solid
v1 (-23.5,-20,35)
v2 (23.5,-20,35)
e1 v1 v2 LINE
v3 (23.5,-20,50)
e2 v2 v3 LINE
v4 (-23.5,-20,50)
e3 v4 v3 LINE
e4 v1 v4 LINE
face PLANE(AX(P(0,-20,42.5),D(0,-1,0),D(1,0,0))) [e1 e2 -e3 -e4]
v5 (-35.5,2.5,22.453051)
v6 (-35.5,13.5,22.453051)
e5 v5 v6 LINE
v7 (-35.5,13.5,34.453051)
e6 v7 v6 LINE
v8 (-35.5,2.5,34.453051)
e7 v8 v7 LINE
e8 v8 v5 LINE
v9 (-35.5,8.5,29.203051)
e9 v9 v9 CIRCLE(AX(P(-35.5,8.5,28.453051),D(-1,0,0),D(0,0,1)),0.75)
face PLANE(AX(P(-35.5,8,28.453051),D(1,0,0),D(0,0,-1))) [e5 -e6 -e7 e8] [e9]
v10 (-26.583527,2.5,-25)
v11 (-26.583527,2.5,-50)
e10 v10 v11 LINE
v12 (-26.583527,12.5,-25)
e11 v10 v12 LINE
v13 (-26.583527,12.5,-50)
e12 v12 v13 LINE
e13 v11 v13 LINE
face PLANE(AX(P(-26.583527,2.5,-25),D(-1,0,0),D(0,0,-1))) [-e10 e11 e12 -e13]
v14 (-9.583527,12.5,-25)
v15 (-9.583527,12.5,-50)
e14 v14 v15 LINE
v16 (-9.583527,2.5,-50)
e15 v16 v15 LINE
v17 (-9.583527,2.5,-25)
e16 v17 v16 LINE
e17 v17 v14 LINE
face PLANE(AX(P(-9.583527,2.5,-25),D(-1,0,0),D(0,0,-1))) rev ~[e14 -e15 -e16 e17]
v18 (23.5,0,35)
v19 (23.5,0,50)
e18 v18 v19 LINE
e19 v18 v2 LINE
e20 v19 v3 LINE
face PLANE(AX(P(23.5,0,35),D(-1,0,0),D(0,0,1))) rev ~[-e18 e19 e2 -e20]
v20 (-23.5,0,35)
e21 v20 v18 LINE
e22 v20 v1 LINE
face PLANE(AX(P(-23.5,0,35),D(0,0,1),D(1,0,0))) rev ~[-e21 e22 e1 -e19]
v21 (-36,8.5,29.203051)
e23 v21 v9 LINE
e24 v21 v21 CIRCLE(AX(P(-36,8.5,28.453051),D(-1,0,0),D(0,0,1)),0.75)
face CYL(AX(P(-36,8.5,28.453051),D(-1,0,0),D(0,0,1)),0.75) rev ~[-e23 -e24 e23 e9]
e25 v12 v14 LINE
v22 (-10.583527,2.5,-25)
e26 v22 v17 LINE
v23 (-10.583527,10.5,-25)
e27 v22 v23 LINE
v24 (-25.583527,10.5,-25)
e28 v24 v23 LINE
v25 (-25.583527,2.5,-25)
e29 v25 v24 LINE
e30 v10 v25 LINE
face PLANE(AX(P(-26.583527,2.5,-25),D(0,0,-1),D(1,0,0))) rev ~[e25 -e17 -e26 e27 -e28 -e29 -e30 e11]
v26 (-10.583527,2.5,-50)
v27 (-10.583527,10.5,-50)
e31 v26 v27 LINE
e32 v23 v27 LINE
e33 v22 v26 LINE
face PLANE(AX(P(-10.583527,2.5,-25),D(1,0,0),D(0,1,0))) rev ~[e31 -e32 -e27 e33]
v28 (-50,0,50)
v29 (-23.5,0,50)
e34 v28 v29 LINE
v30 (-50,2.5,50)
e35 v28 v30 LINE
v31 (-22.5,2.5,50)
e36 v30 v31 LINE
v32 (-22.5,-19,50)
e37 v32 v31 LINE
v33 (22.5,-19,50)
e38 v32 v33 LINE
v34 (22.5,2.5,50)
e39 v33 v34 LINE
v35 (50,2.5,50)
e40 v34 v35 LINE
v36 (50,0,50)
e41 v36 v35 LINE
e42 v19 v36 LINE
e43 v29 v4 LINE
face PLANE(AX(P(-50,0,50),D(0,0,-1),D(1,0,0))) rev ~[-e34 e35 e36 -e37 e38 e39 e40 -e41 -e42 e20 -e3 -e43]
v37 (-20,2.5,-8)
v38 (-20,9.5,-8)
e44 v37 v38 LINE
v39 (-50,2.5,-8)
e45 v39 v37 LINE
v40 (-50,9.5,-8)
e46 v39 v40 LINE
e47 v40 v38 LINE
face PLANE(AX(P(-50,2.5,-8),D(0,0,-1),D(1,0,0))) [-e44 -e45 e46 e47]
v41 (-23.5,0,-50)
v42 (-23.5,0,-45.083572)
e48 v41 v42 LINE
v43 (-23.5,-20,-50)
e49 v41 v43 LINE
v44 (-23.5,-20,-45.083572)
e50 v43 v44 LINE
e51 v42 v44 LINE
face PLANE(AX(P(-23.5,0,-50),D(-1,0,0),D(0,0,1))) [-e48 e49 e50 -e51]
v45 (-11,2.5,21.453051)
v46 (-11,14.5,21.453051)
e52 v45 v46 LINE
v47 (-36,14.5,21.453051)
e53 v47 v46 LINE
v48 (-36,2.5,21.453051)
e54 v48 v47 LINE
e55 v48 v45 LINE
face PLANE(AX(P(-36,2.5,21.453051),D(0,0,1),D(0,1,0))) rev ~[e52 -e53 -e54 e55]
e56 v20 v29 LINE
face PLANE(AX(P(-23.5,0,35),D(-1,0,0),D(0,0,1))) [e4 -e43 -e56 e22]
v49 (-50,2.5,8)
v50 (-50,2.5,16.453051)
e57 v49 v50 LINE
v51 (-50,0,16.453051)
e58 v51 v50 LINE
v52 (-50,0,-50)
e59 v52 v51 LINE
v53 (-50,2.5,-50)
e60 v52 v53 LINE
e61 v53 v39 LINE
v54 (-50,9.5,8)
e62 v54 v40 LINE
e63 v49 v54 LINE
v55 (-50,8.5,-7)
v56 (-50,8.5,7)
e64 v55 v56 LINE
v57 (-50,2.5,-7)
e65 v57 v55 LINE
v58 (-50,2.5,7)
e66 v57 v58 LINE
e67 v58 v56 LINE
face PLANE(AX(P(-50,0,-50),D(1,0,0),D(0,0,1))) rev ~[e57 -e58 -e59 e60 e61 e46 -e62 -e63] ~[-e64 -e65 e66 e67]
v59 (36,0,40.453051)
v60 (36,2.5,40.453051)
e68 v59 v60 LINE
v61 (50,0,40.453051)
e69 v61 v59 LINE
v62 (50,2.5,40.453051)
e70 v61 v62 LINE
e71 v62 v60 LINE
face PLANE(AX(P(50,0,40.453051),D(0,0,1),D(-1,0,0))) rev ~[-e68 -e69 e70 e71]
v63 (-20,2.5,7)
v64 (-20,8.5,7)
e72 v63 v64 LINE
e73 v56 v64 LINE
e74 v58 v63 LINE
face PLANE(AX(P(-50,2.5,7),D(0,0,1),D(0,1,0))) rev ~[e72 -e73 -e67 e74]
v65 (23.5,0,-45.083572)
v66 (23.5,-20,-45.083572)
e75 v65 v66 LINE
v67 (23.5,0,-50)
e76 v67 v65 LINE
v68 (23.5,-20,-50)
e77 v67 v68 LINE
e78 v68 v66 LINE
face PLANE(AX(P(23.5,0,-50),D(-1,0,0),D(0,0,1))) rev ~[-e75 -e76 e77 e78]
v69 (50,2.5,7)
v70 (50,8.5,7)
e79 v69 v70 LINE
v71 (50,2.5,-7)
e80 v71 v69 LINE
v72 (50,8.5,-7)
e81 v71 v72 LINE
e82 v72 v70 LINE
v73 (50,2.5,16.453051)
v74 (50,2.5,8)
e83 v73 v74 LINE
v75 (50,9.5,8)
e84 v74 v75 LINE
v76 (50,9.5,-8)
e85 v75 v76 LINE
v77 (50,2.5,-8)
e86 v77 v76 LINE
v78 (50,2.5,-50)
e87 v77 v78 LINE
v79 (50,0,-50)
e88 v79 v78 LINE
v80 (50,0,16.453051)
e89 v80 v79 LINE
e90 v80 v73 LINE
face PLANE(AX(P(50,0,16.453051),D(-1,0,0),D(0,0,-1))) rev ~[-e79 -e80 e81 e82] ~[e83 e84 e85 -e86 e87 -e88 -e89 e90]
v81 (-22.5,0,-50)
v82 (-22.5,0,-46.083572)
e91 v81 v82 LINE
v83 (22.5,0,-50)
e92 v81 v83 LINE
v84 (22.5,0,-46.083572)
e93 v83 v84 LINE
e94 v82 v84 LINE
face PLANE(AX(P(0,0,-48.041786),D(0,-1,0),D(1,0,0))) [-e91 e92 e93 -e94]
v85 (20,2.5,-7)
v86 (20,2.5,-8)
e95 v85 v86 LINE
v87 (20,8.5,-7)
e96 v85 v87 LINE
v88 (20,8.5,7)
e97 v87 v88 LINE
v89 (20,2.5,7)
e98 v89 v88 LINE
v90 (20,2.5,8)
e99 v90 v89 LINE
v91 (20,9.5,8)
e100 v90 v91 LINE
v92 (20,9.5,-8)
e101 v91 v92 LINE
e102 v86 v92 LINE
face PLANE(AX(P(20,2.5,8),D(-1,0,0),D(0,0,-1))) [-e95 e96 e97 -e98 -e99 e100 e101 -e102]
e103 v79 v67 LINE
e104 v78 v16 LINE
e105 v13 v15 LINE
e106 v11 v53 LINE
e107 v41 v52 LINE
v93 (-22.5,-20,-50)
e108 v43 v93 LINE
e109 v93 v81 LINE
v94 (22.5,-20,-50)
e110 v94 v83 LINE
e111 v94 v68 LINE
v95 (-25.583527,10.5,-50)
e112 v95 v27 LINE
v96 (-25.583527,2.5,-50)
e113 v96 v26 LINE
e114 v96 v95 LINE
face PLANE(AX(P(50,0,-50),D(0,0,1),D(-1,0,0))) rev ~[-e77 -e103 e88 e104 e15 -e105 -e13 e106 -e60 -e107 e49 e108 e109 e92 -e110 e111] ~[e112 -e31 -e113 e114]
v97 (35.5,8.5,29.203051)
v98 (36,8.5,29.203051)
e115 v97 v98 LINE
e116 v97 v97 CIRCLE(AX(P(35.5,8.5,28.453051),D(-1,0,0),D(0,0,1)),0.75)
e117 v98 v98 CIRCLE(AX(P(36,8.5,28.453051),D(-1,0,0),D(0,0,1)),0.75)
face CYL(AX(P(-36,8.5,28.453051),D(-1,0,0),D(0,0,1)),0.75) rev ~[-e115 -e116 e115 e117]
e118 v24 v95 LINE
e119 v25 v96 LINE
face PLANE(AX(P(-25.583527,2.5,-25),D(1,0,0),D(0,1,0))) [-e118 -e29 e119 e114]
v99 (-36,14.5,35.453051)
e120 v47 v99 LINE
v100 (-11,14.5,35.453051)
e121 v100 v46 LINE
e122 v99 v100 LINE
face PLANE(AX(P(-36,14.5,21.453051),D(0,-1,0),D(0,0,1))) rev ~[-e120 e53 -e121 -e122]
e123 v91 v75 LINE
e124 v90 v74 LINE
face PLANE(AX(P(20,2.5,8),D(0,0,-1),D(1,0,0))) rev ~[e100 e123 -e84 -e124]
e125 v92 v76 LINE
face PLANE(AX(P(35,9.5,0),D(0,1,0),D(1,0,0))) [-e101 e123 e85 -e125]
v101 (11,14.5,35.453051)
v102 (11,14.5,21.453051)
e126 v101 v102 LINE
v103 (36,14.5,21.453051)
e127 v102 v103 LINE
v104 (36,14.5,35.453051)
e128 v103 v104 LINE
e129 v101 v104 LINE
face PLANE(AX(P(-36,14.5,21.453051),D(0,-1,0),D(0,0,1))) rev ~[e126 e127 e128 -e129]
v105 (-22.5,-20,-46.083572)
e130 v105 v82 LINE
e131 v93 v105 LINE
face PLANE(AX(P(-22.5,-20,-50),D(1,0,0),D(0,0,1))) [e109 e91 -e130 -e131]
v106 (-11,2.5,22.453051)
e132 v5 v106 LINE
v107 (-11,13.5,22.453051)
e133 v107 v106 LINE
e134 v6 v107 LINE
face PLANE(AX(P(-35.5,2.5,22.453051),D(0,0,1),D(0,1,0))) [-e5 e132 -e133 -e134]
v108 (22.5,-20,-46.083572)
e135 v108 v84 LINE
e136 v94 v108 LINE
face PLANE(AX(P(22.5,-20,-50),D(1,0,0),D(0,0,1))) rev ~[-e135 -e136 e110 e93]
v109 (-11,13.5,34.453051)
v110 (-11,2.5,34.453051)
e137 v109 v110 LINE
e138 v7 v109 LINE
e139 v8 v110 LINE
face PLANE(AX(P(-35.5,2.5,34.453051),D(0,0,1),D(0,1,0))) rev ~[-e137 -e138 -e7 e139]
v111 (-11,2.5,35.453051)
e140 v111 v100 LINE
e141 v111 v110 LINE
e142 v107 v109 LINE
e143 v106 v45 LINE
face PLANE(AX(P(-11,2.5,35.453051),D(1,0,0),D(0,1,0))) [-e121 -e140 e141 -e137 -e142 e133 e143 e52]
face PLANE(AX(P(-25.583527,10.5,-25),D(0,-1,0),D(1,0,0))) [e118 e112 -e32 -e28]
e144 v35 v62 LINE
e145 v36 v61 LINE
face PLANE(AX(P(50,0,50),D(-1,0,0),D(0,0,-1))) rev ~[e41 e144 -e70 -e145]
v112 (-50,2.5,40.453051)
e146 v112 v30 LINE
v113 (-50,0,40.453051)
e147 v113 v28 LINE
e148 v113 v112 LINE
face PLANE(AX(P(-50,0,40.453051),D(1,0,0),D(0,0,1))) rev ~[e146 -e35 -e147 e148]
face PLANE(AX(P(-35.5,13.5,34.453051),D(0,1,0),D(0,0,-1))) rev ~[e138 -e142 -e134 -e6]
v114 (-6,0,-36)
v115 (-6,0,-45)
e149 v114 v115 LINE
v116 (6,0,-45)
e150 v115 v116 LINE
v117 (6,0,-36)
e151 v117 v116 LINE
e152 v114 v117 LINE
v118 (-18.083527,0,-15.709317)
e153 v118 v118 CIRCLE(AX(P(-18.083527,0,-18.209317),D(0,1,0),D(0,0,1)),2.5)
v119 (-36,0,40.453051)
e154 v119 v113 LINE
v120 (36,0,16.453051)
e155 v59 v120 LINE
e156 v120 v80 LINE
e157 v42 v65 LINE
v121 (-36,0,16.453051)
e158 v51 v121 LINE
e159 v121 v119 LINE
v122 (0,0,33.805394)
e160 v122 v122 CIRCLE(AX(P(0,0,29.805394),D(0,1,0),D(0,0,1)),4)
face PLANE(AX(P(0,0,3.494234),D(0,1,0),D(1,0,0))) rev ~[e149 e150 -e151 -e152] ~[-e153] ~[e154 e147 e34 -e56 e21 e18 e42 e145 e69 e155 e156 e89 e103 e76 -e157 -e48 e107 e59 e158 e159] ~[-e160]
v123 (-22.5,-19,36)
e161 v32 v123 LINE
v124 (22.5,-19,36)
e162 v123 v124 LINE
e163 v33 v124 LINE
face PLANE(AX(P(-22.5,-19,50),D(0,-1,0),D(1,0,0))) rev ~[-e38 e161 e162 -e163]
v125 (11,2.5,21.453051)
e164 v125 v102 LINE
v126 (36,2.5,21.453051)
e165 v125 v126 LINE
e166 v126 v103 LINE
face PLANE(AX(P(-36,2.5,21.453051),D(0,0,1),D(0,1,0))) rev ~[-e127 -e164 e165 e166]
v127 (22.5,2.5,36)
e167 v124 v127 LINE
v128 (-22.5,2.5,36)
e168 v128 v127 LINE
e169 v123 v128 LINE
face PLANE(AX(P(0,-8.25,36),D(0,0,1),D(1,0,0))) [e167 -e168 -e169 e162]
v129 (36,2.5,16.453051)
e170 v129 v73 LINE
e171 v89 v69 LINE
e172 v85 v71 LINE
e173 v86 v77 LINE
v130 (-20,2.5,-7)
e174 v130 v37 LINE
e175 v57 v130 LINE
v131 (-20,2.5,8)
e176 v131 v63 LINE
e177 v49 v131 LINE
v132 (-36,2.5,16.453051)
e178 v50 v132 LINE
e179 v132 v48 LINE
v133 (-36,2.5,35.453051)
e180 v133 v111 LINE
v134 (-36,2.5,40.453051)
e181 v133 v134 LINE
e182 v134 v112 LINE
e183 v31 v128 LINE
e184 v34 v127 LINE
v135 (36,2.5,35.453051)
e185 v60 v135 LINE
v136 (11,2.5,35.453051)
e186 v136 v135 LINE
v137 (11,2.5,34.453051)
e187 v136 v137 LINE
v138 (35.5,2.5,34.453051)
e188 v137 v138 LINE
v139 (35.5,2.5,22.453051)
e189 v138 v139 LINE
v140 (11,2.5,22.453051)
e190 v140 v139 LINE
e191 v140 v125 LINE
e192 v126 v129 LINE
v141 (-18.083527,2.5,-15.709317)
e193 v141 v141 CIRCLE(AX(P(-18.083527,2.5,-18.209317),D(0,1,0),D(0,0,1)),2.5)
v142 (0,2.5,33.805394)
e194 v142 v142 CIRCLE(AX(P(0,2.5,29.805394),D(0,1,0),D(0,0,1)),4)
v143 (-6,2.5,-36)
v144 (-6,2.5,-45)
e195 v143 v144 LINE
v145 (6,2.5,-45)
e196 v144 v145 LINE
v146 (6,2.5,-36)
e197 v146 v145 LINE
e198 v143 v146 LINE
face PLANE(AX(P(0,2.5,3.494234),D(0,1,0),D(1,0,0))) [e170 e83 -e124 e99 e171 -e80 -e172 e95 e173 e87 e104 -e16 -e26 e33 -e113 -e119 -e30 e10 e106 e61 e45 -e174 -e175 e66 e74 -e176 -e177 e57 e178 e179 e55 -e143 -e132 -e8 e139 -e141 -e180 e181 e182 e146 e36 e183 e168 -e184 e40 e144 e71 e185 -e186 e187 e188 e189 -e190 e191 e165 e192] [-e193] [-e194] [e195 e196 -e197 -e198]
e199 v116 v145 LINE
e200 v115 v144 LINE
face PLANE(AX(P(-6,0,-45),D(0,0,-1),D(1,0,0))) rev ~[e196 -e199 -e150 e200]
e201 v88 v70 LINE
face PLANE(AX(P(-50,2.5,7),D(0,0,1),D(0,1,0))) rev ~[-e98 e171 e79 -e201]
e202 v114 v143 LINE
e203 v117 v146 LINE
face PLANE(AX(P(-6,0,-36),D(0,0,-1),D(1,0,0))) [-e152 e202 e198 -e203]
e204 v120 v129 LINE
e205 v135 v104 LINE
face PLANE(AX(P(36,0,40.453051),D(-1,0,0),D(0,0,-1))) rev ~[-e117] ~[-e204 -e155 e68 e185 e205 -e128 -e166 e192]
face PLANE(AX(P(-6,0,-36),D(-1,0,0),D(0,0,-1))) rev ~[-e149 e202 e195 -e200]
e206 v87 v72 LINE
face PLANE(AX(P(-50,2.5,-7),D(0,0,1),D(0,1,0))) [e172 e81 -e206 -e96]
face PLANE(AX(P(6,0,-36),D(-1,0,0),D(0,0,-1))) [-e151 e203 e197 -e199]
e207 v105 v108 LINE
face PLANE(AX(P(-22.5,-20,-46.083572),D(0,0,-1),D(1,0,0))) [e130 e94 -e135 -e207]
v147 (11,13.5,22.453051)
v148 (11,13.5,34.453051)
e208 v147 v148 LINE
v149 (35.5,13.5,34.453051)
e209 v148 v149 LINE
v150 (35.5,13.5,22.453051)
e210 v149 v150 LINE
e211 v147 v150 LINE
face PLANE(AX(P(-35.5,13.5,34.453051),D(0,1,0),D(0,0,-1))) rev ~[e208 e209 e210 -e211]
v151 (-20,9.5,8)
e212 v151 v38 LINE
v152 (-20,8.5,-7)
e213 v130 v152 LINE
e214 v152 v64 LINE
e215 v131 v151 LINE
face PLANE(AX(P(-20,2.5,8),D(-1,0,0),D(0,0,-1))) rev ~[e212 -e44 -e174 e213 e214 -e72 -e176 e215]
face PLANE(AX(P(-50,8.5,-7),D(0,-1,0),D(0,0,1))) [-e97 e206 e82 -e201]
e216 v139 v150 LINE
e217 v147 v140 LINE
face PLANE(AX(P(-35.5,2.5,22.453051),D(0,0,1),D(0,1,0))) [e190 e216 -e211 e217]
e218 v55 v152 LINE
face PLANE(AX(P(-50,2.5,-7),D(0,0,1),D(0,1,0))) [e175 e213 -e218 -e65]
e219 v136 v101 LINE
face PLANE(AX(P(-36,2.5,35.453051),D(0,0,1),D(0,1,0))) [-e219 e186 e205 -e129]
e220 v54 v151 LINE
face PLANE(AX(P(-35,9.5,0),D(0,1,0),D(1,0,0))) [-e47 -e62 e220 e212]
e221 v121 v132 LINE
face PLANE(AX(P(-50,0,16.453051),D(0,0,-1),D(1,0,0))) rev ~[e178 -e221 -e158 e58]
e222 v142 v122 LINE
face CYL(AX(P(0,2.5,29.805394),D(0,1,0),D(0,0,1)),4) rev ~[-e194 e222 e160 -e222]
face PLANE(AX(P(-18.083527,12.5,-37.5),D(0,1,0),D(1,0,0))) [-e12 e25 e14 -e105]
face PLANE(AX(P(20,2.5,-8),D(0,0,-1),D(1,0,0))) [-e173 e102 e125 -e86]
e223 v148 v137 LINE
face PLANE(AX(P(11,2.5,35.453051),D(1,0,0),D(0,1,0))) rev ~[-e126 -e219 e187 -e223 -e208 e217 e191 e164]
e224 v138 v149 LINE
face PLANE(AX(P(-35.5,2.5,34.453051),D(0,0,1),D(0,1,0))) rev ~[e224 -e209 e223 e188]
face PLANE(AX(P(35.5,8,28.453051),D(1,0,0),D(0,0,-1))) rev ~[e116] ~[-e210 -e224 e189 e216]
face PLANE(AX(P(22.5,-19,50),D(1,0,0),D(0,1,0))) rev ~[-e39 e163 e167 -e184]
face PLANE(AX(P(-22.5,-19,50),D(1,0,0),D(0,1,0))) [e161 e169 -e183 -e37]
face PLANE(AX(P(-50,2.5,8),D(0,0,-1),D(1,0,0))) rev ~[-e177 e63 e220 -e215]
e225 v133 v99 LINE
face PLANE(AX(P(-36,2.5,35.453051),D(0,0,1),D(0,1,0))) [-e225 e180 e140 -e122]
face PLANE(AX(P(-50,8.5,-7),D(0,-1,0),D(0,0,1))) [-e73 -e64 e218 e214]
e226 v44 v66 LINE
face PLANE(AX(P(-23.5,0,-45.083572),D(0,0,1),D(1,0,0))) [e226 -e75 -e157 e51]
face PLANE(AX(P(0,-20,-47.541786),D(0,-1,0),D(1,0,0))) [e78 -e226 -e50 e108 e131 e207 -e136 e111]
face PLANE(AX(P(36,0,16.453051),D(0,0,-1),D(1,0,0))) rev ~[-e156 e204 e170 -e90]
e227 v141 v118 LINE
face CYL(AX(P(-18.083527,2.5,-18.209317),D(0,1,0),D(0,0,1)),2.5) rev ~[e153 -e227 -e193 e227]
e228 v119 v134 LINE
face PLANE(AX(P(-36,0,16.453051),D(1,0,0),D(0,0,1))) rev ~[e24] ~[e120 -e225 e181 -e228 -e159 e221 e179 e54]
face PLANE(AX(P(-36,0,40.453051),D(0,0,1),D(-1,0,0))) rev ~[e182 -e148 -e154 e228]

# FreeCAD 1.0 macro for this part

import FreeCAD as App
import Part
import Sketcher
Q = App.Units.Quantity

doc = App.newDocument("Part")
body = doc.addObject("PartDesign::Body", "Body")

# Sketch on XZ plane
sketch1 = body.newObject("Sketcher::SketchObject", "Sketch")
sketch1.AttachmentSupport = (doc.getObject("XZ_Plane"), [""])
sketch1.MapMode = "FlatFace"
sketch1.addGeometry(Part.LineSegment(App.Vector(-50, 40.453051, 0), App.Vector(-50, 50, 0)), False)
sketch1.addGeometry(Part.LineSegment(App.Vector(-50, 50, 0), App.Vector(50, 50, 0)), False)
sketch1.addGeometry(Part.LineSegment(App.Vector(50, 50, 0), App.Vector(50, 40.453051, 0)), False)
sketch1.addGeometry(Part.LineSegment(App.Vector(50, 40.453051, 0), App.Vector(36, 40.453051, 0)), False)
sketch1.addGeometry(Part.LineSegment(App.Vector(36, 40.453051, 0), App.Vector(36, 16.453051, 0)), False)
sketch1.addGeometry(Part.LineSegment(App.Vector(36, 16.453051, 0), App.Vector(50, 16.453051, 0)), False)
sketch1.addGeometry(Part.LineSegment(App.Vector(50, 16.453051, 0), App.Vector(50, -50, 0)), False)
sketch1.addGeometry(Part.LineSegment(App.Vector(50, -50, 0), App.Vector(-50, -50, 0)), False)
sketch1.addGeometry(Part.LineSegment(App.Vector(-50, -50, 0), App.Vector(-50, 16.453051, 0)), False)
sketch1.addGeometry(Part.LineSegment(App.Vector(-50, 16.453051, 0), App.Vector(-36, 16.453051, 0)), False)
sketch1.addGeometry(Part.LineSegment(App.Vector(-36, 16.453051, 0), App.Vector(-36, 40.453051, 0)), False)
sketch1.addGeometry(Part.LineSegment(App.Vector(-36, 40.453051, 0), App.Vector(-50, 40.453051, 0)), False)
sketch1.addGeometry(Part.LineSegment(App.Vector(6, -36, 0), App.Vector(-6, -36, 0)), False)
sketch1.addGeometry(Part.LineSegment(App.Vector(-6, -36, 0), App.Vector(-6, -45, 0)), False)
sketch1.addGeometry(Part.LineSegment(App.Vector(-6, -45, 0), App.Vector(6, -45, 0)), False)
sketch1.addGeometry(Part.LineSegment(App.Vector(6, -45, 0), App.Vector(6, -36, 0)), False)
sketch1.addConstraint(Sketcher.Constraint("Coincident", 0, 2, 1, 1))
sketch1.addConstraint(Sketcher.Constraint("Coincident", 1, 2, 2, 1))
sketch1.addConstraint(Sketcher.Constraint("Coincident", 2, 2, 3, 1))
sketch1.addConstraint(Sketcher.Constraint("Coincident", 3, 2, 4, 1))
sketch1.addConstraint(Sketcher.Constraint("Coincident", 4, 2, 5, 1))
sketch1.addConstraint(Sketcher.Constraint("Coincident", 5, 2, 6, 1))
sketch1.addConstraint(Sketcher.Constraint("Coincident", 6, 2, 7, 1))
sketch1.addConstraint(Sketcher.Constraint("Coincident", 7, 2, 8, 1))
sketch1.addConstraint(Sketcher.Constraint("Coincident", 8, 2, 9, 1))
sketch1.addConstraint(Sketcher.Constraint("Coincident", 9, 2, 10, 1))
sketch1.addConstraint(Sketcher.Constraint("Coincident", 10, 2, 11, 1))
sketch1.addConstraint(Sketcher.Constraint("Coincident", 11, 2, 0, 1))
sketch1.addConstraint(Sketcher.Constraint("Coincident", 12, 2, 13, 1))
sketch1.addConstraint(Sketcher.Constraint("Coincident", 13, 2, 14, 1))
sketch1.addConstraint(Sketcher.Constraint("Coincident", 14, 2, 15, 1))
sketch1.addConstraint(Sketcher.Constraint("Coincident", 15, 2, 12, 1))
sketch1.addConstraint(Sketcher.Constraint("Vertical", 0))
sketch1.addConstraint(Sketcher.Constraint("Horizontal", 1))
sketch1.addConstraint(Sketcher.Constraint("Vertical", 2))
sketch1.addConstraint(Sketcher.Constraint("Horizontal", 3))
sketch1.addConstraint(Sketcher.Constraint("Vertical", 4))
sketch1.addConstraint(Sketcher.Constraint("Horizontal", 5))
sketch1.addConstraint(Sketcher.Constraint("Vertical", 6))
sketch1.addConstraint(Sketcher.Constraint("Horizontal", 7))
sketch1.addConstraint(Sketcher.Constraint("Vertical", 8))
sketch1.addConstraint(Sketcher.Constraint("Horizontal", 9))
sketch1.addConstraint(Sketcher.Constraint("Vertical", 10))
sketch1.addConstraint(Sketcher.Constraint("Horizontal", 11))
sketch1.addConstraint(Sketcher.Constraint("Horizontal", 12))
sketch1.addConstraint(Sketcher.Constraint("Vertical", 13))
sketch1.addConstraint(Sketcher.Constraint("Horizontal", 14))
sketch1.addConstraint(Sketcher.Constraint("Vertical", 15))
sketch1.addConstraint(Sketcher.Constraint("Symmetric", 0, 2, 6, 2, -1, 1))
sketch1.addConstraint(Sketcher.Constraint("Symmetric", 5, 2, 8, 2, -2))
sketch1.addConstraint(Sketcher.Constraint("Symmetric", 3, 2, 10, 2, -2))
sketch1.addConstraint(Sketcher.Constraint("Vertical", 2, 2, 5, 2))
sketch1.addConstraint(Sketcher.Constraint("DistanceX", 1, 1, 1, 2, Q("100 mm")))
sketch1.addConstraint(Sketcher.Constraint("DistanceX", 3, 2, 3, 1, Q("14 mm")))
sketch1.addConstraint(Sketcher.Constraint("DistanceX", 12, 2, 12, 1, Q("12 mm")))
sketch1.addConstraint(Sketcher.Constraint("DistanceY", 4, 2, 4, 1, Q("24 mm")))
sketch1.addConstraint(Sketcher.Constraint("DistanceY", 13, 2, 13, 1, Q("9 mm")))
sketch1.addConstraint(Sketcher.Constraint("DistanceY", -1, 1, 0, 2, Q("50 mm")))
sketch1.addConstraint(Sketcher.Constraint("DistanceX", 12, 2, -1, 1, Q("6 mm")))
sketch1.addConstraint(Sketcher.Constraint("DistanceY", 12, 2, -1, 1, Q("36 mm")))
sketch1.addConstraint(Sketcher.Constraint("DistanceY", 0, 1, 0, 2, Q("9.546949 mm")))
pad1 = body.newObject("PartDesign::Pad", "Pad")
pad1.Profile = sketch1
pad1.Length = 2.5
pad1.Reversed = True

# Sketch on XZ plane
sketch2 = body.newObject("Sketcher::SketchObject", "Sketch001")
sketch2.AttachmentSupport = (doc.getObject("XZ_Plane"), [""])
sketch2.MapMode = "FlatFace"
sketch2.AttachmentOffset = App.Placement(App.Vector(0, 0, -2.5), App.Rotation())
sketch2.addGeometry(Part.LineSegment(App.Vector(-26.583527, -50, 0), App.Vector(-26.583527, -25, 0)), False)
sketch2.addGeometry(Part.LineSegment(App.Vector(-26.583527, -25, 0), App.Vector(-9.583527, -25, 0)), False)
sketch2.addGeometry(Part.LineSegment(App.Vector(-9.583527, -25, 0), App.Vector(-9.583527, -50, 0)), False)
sketch2.addGeometry(Part.LineSegment(App.Vector(-9.583527, -50, 0), App.Vector(-26.583527, -50, 0)), False)
sketch2.addConstraint(Sketcher.Constraint("Coincident", 0, 2, 1, 1))
sketch2.addConstraint(Sketcher.Constraint("Coincident", 1, 2, 2, 1))
sketch2.addConstraint(Sketcher.Constraint("Coincident", 2, 2, 3, 1))
sketch2.addConstraint(Sketcher.Constraint("Coincident", 3, 2, 0, 1))
sketch2.addConstraint(Sketcher.Constraint("Vertical", 0))
sketch2.addConstraint(Sketcher.Constraint("Horizontal", 1))
sketch2.addConstraint(Sketcher.Constraint("Vertical", 2))
sketch2.addConstraint(Sketcher.Constraint("Horizontal", 3))
sketch2.addConstraint(Sketcher.Constraint("DistanceX", 1, 1, 1, 2, Q("17 mm")))
sketch2.addConstraint(Sketcher.Constraint("DistanceY", 0, 1, 0, 2, Q("25 mm")))
sketch2.addConstraint(Sketcher.Constraint("DistanceY", 0, 2, -1, 1, Q("25 mm")))
sketch2.addConstraint(Sketcher.Constraint("DistanceX", 0, 2, -1, 1, Q("26.583527 mm")))
pad2 = body.newObject("PartDesign::Pad", "Pad001")
pad2.Profile = sketch2
pad2.Length = 10
pad2.Reversed = True

# Sketch on XY plane
sketch3 = body.newObject("Sketcher::SketchObject", "Sketch002")
sketch3.AttachmentSupport = (doc.getObject("XY_Plane"), [""])
sketch3.MapMode = "FlatFace"
sketch3.AttachmentOffset = App.Placement(App.Vector(0, 0, -25), App.Rotation())
sketch3.addGeometry(Part.LineSegment(App.Vector(-25.583527, 10.5, 0), App.Vector(-25.583527, 2.5, 0)), False)
sketch3.addGeometry(Part.LineSegment(App.Vector(-25.583527, 2.5, 0), App.Vector(-10.583527, 2.5, 0)), False)
sketch3.addGeometry(Part.LineSegment(App.Vector(-10.583527, 2.5, 0), App.Vector(-10.583527, 10.5, 0)), False)
sketch3.addGeometry(Part.LineSegment(App.Vector(-10.583527, 10.5, 0), App.Vector(-25.583527, 10.5, 0)), False)
sketch3.addConstraint(Sketcher.Constraint("Coincident", 0, 2, 1, 1))
sketch3.addConstraint(Sketcher.Constraint("Coincident", 1, 2, 2, 1))
sketch3.addConstraint(Sketcher.Constraint("Coincident", 2, 2, 3, 1))
sketch3.addConstraint(Sketcher.Constraint("Coincident", 3, 2, 0, 1))
sketch3.addConstraint(Sketcher.Constraint("Vertical", 0))
sketch3.addConstraint(Sketcher.Constraint("Horizontal", 1))
sketch3.addConstraint(Sketcher.Constraint("Vertical", 2))
sketch3.addConstraint(Sketcher.Constraint("Horizontal", 3))
sketch3.addConstraint(Sketcher.Constraint("DistanceX", 1, 1, 1, 2, Q("15 mm")))
sketch3.addConstraint(Sketcher.Constraint("DistanceY", 0, 2, 0, 1, Q("8 mm")))
sketch3.addConstraint(Sketcher.Constraint("DistanceY", -1, 1, 0, 2, Q("2.5 mm")))
sketch3.addConstraint(Sketcher.Constraint("DistanceX", 0, 2, -1, 1, Q("25.583527 mm")))
pocket1 = body.newObject("PartDesign::Pocket", "Pocket")
pocket1.Profile = sketch3
pocket1.Length = 42

# Sketch on YZ plane
sketch4 = body.newObject("Sketcher::SketchObject", "Sketch003")
sketch4.AttachmentSupport = (doc.getObject("YZ_Plane"), [""])
sketch4.MapMode = "FlatFace"
sketch4.AttachmentOffset = App.Placement(App.Vector(0, 0, -36), App.Rotation())
sketch4.addGeometry(Part.LineSegment(App.Vector(14.5, 21.453051, 0), App.Vector(2.5, 21.453051, 0)), False)
sketch4.addGeometry(Part.LineSegment(App.Vector(2.5, 21.453051, 0), App.Vector(2.5, 35.453051, 0)), False)
sketch4.addGeometry(Part.LineSegment(App.Vector(2.5, 35.453051, 0), App.Vector(14.5, 35.453051, 0)), False)
sketch4.addGeometry(Part.LineSegment(App.Vector(14.5, 35.453051, 0), App.Vector(14.5, 21.453051, 0)), False)
sketch4.addConstraint(Sketcher.Constraint("Coincident", 0, 2, 1, 1))
sketch4.addConstraint(Sketcher.Constraint("Coincident", 1, 2, 2, 1))
sketch4.addConstraint(Sketcher.Constraint("Coincident", 2, 2, 3, 1))
sketch4.addConstraint(Sketcher.Constraint("Coincident", 3, 2, 0, 1))
sketch4.addConstraint(Sketcher.Constraint("Horizontal", 0))
sketch4.addConstraint(Sketcher.Constraint("Vertical", 1))
sketch4.addConstraint(Sketcher.Constraint("Horizontal", 2))
sketch4.addConstraint(Sketcher.Constraint("Vertical", 3))
sketch4.addConstraint(Sketcher.Constraint("DistanceX", 0, 2, 0, 1, Q("12 mm")))
sketch4.addConstraint(Sketcher.Constraint("DistanceY", 1, 1, 1, 2, Q("14 mm")))
sketch4.addConstraint(Sketcher.Constraint("DistanceX", -1, 1, 0, 2, Q("2.5 mm")))
sketch4.addConstraint(Sketcher.Constraint("DistanceY", -1, 1, 0, 2, Q("21.453051 mm")))
pad3 = body.newObject("PartDesign::Pad", "Pad002")
pad3.Profile = sketch4
pad3.Length = 72

# Sketch on YZ plane
sketch5 = body.newObject("Sketcher::SketchObject", "Sketch004")
sketch5.AttachmentSupport = (doc.getObject("YZ_Plane"), [""])
sketch5.MapMode = "FlatFace"
sketch5.AttachmentOffset = App.Placement(App.Vector(0, 0, -36), App.Rotation())
sketch5.addGeometry(Part.Circle(App.Vector(8.5, 28.453051, 0), App.Vector(0, 0, 1), 0.75), False)
sketch5.addConstraint(Sketcher.Constraint("Diameter", 0, Q("1.5 mm")))
sketch5.addConstraint(Sketcher.Constraint("DistanceX", -1, 1, 0, 3, Q("8.5 mm")))
sketch5.addConstraint(Sketcher.Constraint("DistanceY", -1, 1, 0, 3, Q("28.453051 mm")))
pocket2 = body.newObject("PartDesign::Pocket", "Pocket001")
pocket2.Profile = sketch5
pocket2.Length = 72
pocket2.Reversed = True

# Sketch on XY plane
sketch6 = body.newObject("Sketcher::SketchObject", "Sketch005")
sketch6.AttachmentSupport = (doc.getObject("XY_Plane"), [""])
sketch6.MapMode = "FlatFace"
sketch6.AttachmentOffset = App.Placement(App.Vector(0, 0, 35.453051), App.Rotation())
sketch6.addGeometry(Part.LineSegment(App.Vector(-11, 14.5, 0), App.Vector(-11, 2.5, 0)), False)
sketch6.addGeometry(Part.LineSegment(App.Vector(-11, 2.5, 0), App.Vector(11, 2.5, 0)), False)
sketch6.addGeometry(Part.LineSegment(App.Vector(11, 2.5, 0), App.Vector(11, 14.5, 0)), False)
sketch6.addGeometry(Part.LineSegment(App.Vector(11, 14.5, 0), App.Vector(-11, 14.5, 0)), False)
sketch6.addConstraint(Sketcher.Constraint("Coincident", 0, 2, 1, 1))
sketch6.addConstraint(Sketcher.Constraint("Coincident", 1, 2, 2, 1))
sketch6.addConstraint(Sketcher.Constraint("Coincident", 2, 2, 3, 1))
sketch6.addConstraint(Sketcher.Constraint("Coincident", 3, 2, 0, 1))
sketch6.addConstraint(Sketcher.Constraint("Vertical", 0))
sketch6.addConstraint(Sketcher.Constraint("Horizontal", 1))
sketch6.addConstraint(Sketcher.Constraint("Vertical", 2))
sketch6.addConstraint(Sketcher.Constraint("Horizontal", 3))
sketch6.addConstraint(Sketcher.Constraint("DistanceX", 1, 1, 1, 2, Q("22 mm")))
sketch6.addConstraint(Sketcher.Constraint("DistanceY", 0, 2, 0, 1, Q("12 mm")))
sketch6.addConstraint(Sketcher.Constraint("DistanceX", 0, 2, -1, 1, Q("11 mm")))
sketch6.addConstraint(Sketcher.Constraint("DistanceY", -1, 1, 0, 2, Q("2.5 mm")))
pocket3 = body.newObject("PartDesign::Pocket", "Pocket002")
pocket3.Profile = sketch6
pocket3.Length = 37

# Sketch on XZ plane
sketch7 = body.newObject("Sketcher::SketchObject", "Sketch006")
sketch7.AttachmentSupport = (doc.getObject("XZ_Plane"), [""])
sketch7.MapMode = "FlatFace"
sketch7.AttachmentOffset = App.Placement(App.Vector(0, 0, -2.5), App.Rotation())
sketch7.addGeometry(Part.Circle(App.Vector(-18.083527, -18.209317, 0), App.Vector(0, 0, 1), 2.5), False)
sketch7.addConstraint(Sketcher.Constraint("Diameter", 0, Q("5 mm")))
sketch7.addConstraint(Sketcher.Constraint("DistanceX", 0, 3, -1, 1, Q("18.083527 mm")))
sketch7.addConstraint(Sketcher.Constraint("DistanceY", 0, 3, -1, 1, Q("18.209317 mm")))
pocket4 = body.newObject("PartDesign::Pocket", "Pocket003")
pocket4.Profile = sketch7
pocket4.Length = 23.5
pocket4.Reversed = True

# Sketch on XZ plane
sketch8 = body.newObject("Sketcher::SketchObject", "Sketch007")
sketch8.AttachmentSupport = (doc.getObject("XZ_Plane"), [""])
sketch8.MapMode = "FlatFace"
sketch8.addGeometry(Part.LineSegment(App.Vector(-23.5, 50, 0), App.Vector(-23.5, 35, 0)), False)
sketch8.addGeometry(Part.LineSegment(App.Vector(-23.5, 35, 0), App.Vector(23.5, 35, 0)), False)
sketch8.addGeometry(Part.LineSegment(App.Vector(23.5, 35, 0), App.Vector(23.5, 50, 0)), False)
sketch8.addGeometry(Part.LineSegment(App.Vector(23.5, 50, 0), App.Vector(-23.5, 50, 0)), False)
sketch8.addConstraint(Sketcher.Constraint("Coincident", 0, 2, 1, 1))
sketch8.addConstraint(Sketcher.Constraint("Coincident", 1, 2, 2, 1))
sketch8.addConstraint(Sketcher.Constraint("Coincident", 2, 2, 3, 1))
sketch8.addConstraint(Sketcher.Constraint("Coincident", 3, 2, 0, 1))
sketch8.addConstraint(Sketcher.Constraint("Vertical", 0))
sketch8.addConstraint(Sketcher.Constraint("Horizontal", 1))
sketch8.addConstraint(Sketcher.Constraint("Vertical", 2))
sketch8.addConstraint(Sketcher.Constraint("Horizontal", 3))
sketch8.addConstraint(Sketcher.Constraint("DistanceX", 1, 1, 1, 2, Q("47 mm")))
sketch8.addConstraint(Sketcher.Constraint("DistanceY", 0, 2, 0, 1, Q("15 mm")))
sketch8.addConstraint(Sketcher.Constraint("DistanceY", -1, 1, 0, 2, Q("35 mm")))
sketch8.addConstraint(Sketcher.Constraint("DistanceX", 0, 2, -1, 1, Q("23.5 mm")))
pad4 = body.newObject("PartDesign::Pad", "Pad003")
pad4.Profile = sketch8
pad4.Length = 20

# Sketch on XY plane
sketch9 = body.newObject("Sketcher::SketchObject", "Sketch008")
sketch9.AttachmentSupport = (doc.getObject("XY_Plane"), [""])
sketch9.MapMode = "FlatFace"
sketch9.AttachmentOffset = App.Placement(App.Vector(0, 0, 50), App.Rotation())
sketch9.addGeometry(Part.LineSegment(App.Vector(-22.5, 2.5, 0), App.Vector(-22.5, -19, 0)), False)
sketch9.addGeometry(Part.LineSegment(App.Vector(-22.5, -19, 0), App.Vector(22.5, -19, 0)), False)
sketch9.addGeometry(Part.LineSegment(App.Vector(22.5, -19, 0), App.Vector(22.5, 2.5, 0)), False)
sketch9.addGeometry(Part.LineSegment(App.Vector(22.5, 2.5, 0), App.Vector(-22.5, 2.5, 0)), False)
sketch9.addConstraint(Sketcher.Constraint("Coincident", 0, 2, 1, 1))
sketch9.addConstraint(Sketcher.Constraint("Coincident", 1, 2, 2, 1))
sketch9.addConstraint(Sketcher.Constraint("Coincident", 2, 2, 3, 1))
sketch9.addConstraint(Sketcher.Constraint("Coincident", 3, 2, 0, 1))
sketch9.addConstraint(Sketcher.Constraint("Vertical", 0))
sketch9.addConstraint(Sketcher.Constraint("Horizontal", 1))
sketch9.addConstraint(Sketcher.Constraint("Vertical", 2))
sketch9.addConstraint(Sketcher.Constraint("Horizontal", 3))
sketch9.addConstraint(Sketcher.Constraint("DistanceX", 1, 1, 1, 2, Q("45 mm")))
sketch9.addConstraint(Sketcher.Constraint("DistanceY", 0, 2, 0, 1, Q("21.5 mm")))
sketch9.addConstraint(Sketcher.Constraint("DistanceY", 0, 2, -1, 1, Q("19 mm")))
sketch9.addConstraint(Sketcher.Constraint("DistanceX", 0, 2, -1, 1, Q("22.5 mm")))
pocket5 = body.newObject("PartDesign::Pocket", "Pocket004")
pocket5.Profile = sketch9
pocket5.Length = 14

# Sketch on XZ plane
sketch10 = body.newObject("Sketcher::SketchObject", "Sketch009")
sketch10.AttachmentSupport = (doc.getObject("XZ_Plane"), [""])
sketch10.MapMode = "FlatFace"
sketch10.addGeometry(Part.LineSegment(App.Vector(-23.5, -45.083572, 0), App.Vector(-23.5, -50, 0)), False)
sketch10.addGeometry(Part.LineSegment(App.Vector(-23.5, -50, 0), App.Vector(23.5, -50, 0)), False)
sketch10.addGeometry(Part.LineSegment(App.Vector(23.5, -50, 0), App.Vector(23.5, -45.083572, 0)), False)
sketch10.addGeometry(Part.LineSegment(App.Vector(23.5, -45.083572, 0), App.Vector(-23.5, -45.083572, 0)), False)
sketch10.addConstraint(Sketcher.Constraint("Coincident", 0, 2, 1, 1))
sketch10.addConstraint(Sketcher.Constraint("Coincident", 1, 2, 2, 1))
sketch10.addConstraint(Sketcher.Constraint("Coincident", 2, 2, 3, 1))
sketch10.addConstraint(Sketcher.Constraint("Coincident", 3, 2, 0, 1))
sketch10.addConstraint(Sketcher.Constraint("Vertical", 0))
sketch10.addConstraint(Sketcher.Constraint("Horizontal", 1))
sketch10.addConstraint(Sketcher.Constraint("Vertical", 2))
sketch10.addConstraint(Sketcher.Constraint("Horizontal", 3))
sketch10.addConstraint(Sketcher.Constraint("DistanceX", 1, 1, 1, 2, Q("47 mm")))
sketch10.addConstraint(Sketcher.Constraint("DistanceY", 0, 2, -1, 1, Q("50 mm")))
sketch10.addConstraint(Sketcher.Constraint("DistanceX", 0, 2, -1, 1, Q("23.5 mm")))
sketch10.addConstraint(Sketcher.Constraint("DistanceY", 0, 2, 0, 1, Q("4.916428 mm")))
pad5 = body.newObject("PartDesign::Pad", "Pad004")
pad5.Profile = sketch10
pad5.Length = 20

# Sketch on XZ plane
sketch11 = body.newObject("Sketcher::SketchObject", "Sketch010")
sketch11.AttachmentSupport = (doc.getObject("XZ_Plane"), [""])
sketch11.MapMode = "FlatFace"
sketch11.AttachmentOffset = App.Placement(App.Vector(0, 0, 20), App.Rotation())
sketch11.addGeometry(Part.LineSegment(App.Vector(-22.5, -46.083572, 0), App.Vector(-22.5, -50, 0)), False)
sketch11.addGeometry(Part.LineSegment(App.Vector(-22.5, -50, 0), App.Vector(22.5, -50, 0)), False)
sketch11.addGeometry(Part.LineSegment(App.Vector(22.5, -50, 0), App.Vector(22.5, -46.083572, 0)), False)
sketch11.addGeometry(Part.LineSegment(App.Vector(22.5, -46.083572, 0), App.Vector(-22.5, -46.083572, 0)), False)
sketch11.addConstraint(Sketcher.Constraint("Coincident", 0, 2, 1, 1))
sketch11.addConstraint(Sketcher.Constraint("Coincident", 1, 2, 2, 1))
sketch11.addConstraint(Sketcher.Constraint("Coincident", 2, 2, 3, 1))
sketch11.addConstraint(Sketcher.Constraint("Coincident", 3, 2, 0, 1))
sketch11.addConstraint(Sketcher.Constraint("Vertical", 0))
sketch11.addConstraint(Sketcher.Constraint("Horizontal", 1))
sketch11.addConstraint(Sketcher.Constraint("Vertical", 2))
sketch11.addConstraint(Sketcher.Constraint("Horizontal", 3))
sketch11.addConstraint(Sketcher.Constraint("DistanceX", 1, 1, 1, 2, Q("45 mm")))
sketch11.addConstraint(Sketcher.Constraint("DistanceY", 0, 2, -1, 1, Q("50 mm")))
sketch11.addConstraint(Sketcher.Constraint("DistanceX", 0, 2, -1, 1, Q("22.5 mm")))
sketch11.addConstraint(Sketcher.Constraint("DistanceY", 0, 2, 0, 1, Q("3.916428 mm")))
pocket6 = body.newObject("PartDesign::Pocket", "Pocket005")
pocket6.Profile = sketch11
pocket6.Length = 20

# Sketch on XZ plane
sketch12 = body.newObject("Sketcher::SketchObject", "Sketch011")
sketch12.AttachmentSupport = (doc.getObject("XZ_Plane"), [""])
sketch12.MapMode = "FlatFace"
sketch12.AttachmentOffset = App.Placement(App.Vector(0, 0, -2.5), App.Rotation())
sketch12.addGeometry(Part.LineSegment(App.Vector(-50, -8, 0), App.Vector(-50, 8, 0)), False)
sketch12.addGeometry(Part.LineSegment(App.Vector(-50, 8, 0), App.Vector(-20, 8, 0)), False)
sketch12.addGeometry(Part.LineSegment(App.Vector(-20, 8, 0), App.Vector(-20, -8, 0)), False)
sketch12.addGeometry(Part.LineSegment(App.Vector(-20, -8, 0), App.Vector(-50, -8, 0)), False)
sketch12.addGeometry(Part.LineSegment(App.Vector(20, -8, 0), App.Vector(20, 8, 0)), False)
sketch12.addGeometry(Part.LineSegment(App.Vector(20, 8, 0), App.Vector(50, 8, 0)), False)
sketch12.addGeometry(Part.LineSegment(App.Vector(50, 8, 0), App.Vector(50, -8, 0)), False)
sketch12.addGeometry(Part.LineSegment(App.Vector(50, -8, 0), App.Vector(20, -8, 0)), False)
sketch12.addConstraint(Sketcher.Constraint("Coincident", 0, 2, 1, 1))
sketch12.addConstraint(Sketcher.Constraint("Coincident", 1, 2, 2, 1))
sketch12.addConstraint(Sketcher.Constraint("Coincident", 2, 2, 3, 1))
sketch12.addConstraint(Sketcher.Constraint("Coincident", 3, 2, 0, 1))
sketch12.addConstraint(Sketcher.Constraint("Coincident", 4, 2, 5, 1))
sketch12.addConstraint(Sketcher.Constraint("Coincident", 5, 2, 6, 1))
sketch12.addConstraint(Sketcher.Constraint("Coincident", 6, 2, 7, 1))
sketch12.addConstraint(Sketcher.Constraint("Coincident", 7, 2, 4, 1))
sketch12.addConstraint(Sketcher.Constraint("Vertical", 0))
sketch12.addConstraint(Sketcher.Constraint("Horizontal", 1))
sketch12.addConstraint(Sketcher.Constraint("Vertical", 2))
sketch12.addConstraint(Sketcher.Constraint("Horizontal", 3))
sketch12.addConstraint(Sketcher.Constraint("Vertical", 4))
sketch12.addConstraint(Sketcher.Constraint("Horizontal", 5))
sketch12.addConstraint(Sketcher.Constraint("Vertical", 6))
sketch12.addConstraint(Sketcher.Constraint("Horizontal", 7))
sketch12.addConstraint(Sketcher.Constraint("Symmetric", 2, 2, 4, 2, -1, 1))
sketch12.addConstraint(Sketcher.Constraint("Symmetric", 0, 2, 6, 2, -1, 1))
sketch12.addConstraint(Sketcher.Constraint("Horizontal", 1, 2, 4, 2))
sketch12.addConstraint(Sketcher.Constraint("DistanceX", 1, 1, 1, 2, Q("30 mm")))
sketch12.addConstraint(Sketcher.Constraint("DistanceY", 0, 1, 0, 2, Q("16 mm")))
sketch12.addConstraint(Sketcher.Constraint("DistanceX", 0, 2, -1, 1, Q("50 mm")))
pad6 = body.newObject("PartDesign::Pad", "Pad005")
pad6.Profile = sketch12
pad6.Length = 7
pad6.Reversed = True

# Sketch on YZ plane
sketch13 = body.newObject("Sketcher::SketchObject", "Sketch012")
sketch13.AttachmentSupport = (doc.getObject("YZ_Plane"), [""])
sketch13.MapMode = "FlatFace"
sketch13.AttachmentOffset = App.Placement(App.Vector(0, 0, -50), App.Rotation())
sketch13.addGeometry(Part.LineSegment(App.Vector(8.5, -7, 0), App.Vector(2.5, -7, 0)), False)
sketch13.addGeometry(Part.LineSegment(App.Vector(2.5, -7, 0), App.Vector(2.5, 7, 0)), False)
sketch13.addGeometry(Part.LineSegment(App.Vector(2.5, 7, 0), App.Vector(8.5, 7, 0)), False)
sketch13.addGeometry(Part.LineSegment(App.Vector(8.5, 7, 0), App.Vector(8.5, -7, 0)), False)
sketch13.addConstraint(Sketcher.Constraint("Coincident", 0, 2, 1, 1))
sketch13.addConstraint(Sketcher.Constraint("Coincident", 1, 2, 2, 1))
sketch13.addConstraint(Sketcher.Constraint("Coincident", 2, 2, 3, 1))
sketch13.addConstraint(Sketcher.Constraint("Coincident", 3, 2, 0, 1))
sketch13.addConstraint(Sketcher.Constraint("Horizontal", 0))
sketch13.addConstraint(Sketcher.Constraint("Vertical", 1))
sketch13.addConstraint(Sketcher.Constraint("Horizontal", 2))
sketch13.addConstraint(Sketcher.Constraint("Vertical", 3))
sketch13.addConstraint(Sketcher.Constraint("DistanceX", 0, 2, 0, 1, Q("6 mm")))
sketch13.addConstraint(Sketcher.Constraint("DistanceY", 1, 1, 1, 2, Q("14 mm")))
sketch13.addConstraint(Sketcher.Constraint("DistanceY", 0, 2, -1, 1, Q("7 mm")))
sketch13.addConstraint(Sketcher.Constraint("DistanceX", -1, 1, 0, 2, Q("2.5 mm")))
pocket7 = body.newObject("PartDesign::Pocket", "Pocket006")
pocket7.Profile = sketch13
pocket7.Length = 100
pocket7.Reversed = True

# Sketch on YZ plane
sketch14 = body.newObject("Sketcher::SketchObject", "Sketch013")
sketch14.AttachmentSupport = (doc.getObject("YZ_Plane"), [""])
sketch14.MapMode = "FlatFace"
sketch14.AttachmentOffset = App.Placement(App.Vector(0, 0, -11), App.Rotation())
sketch14.addGeometry(Part.LineSegment(App.Vector(13.5, 34.453051, 0), App.Vector(2.5, 34.453051, 0)), False)
sketch14.addGeometry(Part.LineSegment(App.Vector(2.5, 34.453051, 0), App.Vector(2.5, 22.453051, 0)), False)
sketch14.addGeometry(Part.LineSegment(App.Vector(2.5, 22.453051, 0), App.Vector(13.5, 22.453051, 0)), False)
sketch14.addGeometry(Part.LineSegment(App.Vector(13.5, 22.453051, 0), App.Vector(13.5, 34.453051, 0)), False)
sketch14.addConstraint(Sketcher.Constraint("Coincident", 0, 2, 1, 1))
sketch14.addConstraint(Sketcher.Constraint("Coincident", 1, 2, 2, 1))
sketch14.addConstraint(Sketcher.Constraint("Coincident", 2, 2, 3, 1))
sketch14.addConstraint(Sketcher.Constraint("Coincident", 3, 2, 0, 1))
sketch14.addConstraint(Sketcher.Constraint("Horizontal", 0))
sketch14.addConstraint(Sketcher.Constraint("Vertical", 1))
sketch14.addConstraint(Sketcher.Constraint("Horizontal", 2))
sketch14.addConstraint(Sketcher.Constraint("Vertical", 3))
sketch14.addConstraint(Sketcher.Constraint("DistanceX", 0, 2, 0, 1, Q("11 mm")))
sketch14.addConstraint(Sketcher.Constraint("DistanceY", 1, 2, 1, 1, Q("12 mm")))
sketch14.addConstraint(Sketcher.Constraint("DistanceX", -1, 1, 0, 2, Q("2.5 mm")))
sketch14.addConstraint(Sketcher.Constraint("DistanceY", -1, 1, 0, 2, Q("34.453051 mm")))
pocket8 = body.newObject("PartDesign::Pocket", "Pocket007")
pocket8.Profile = sketch14
pocket8.Type = "TwoLengths"
pocket8.Length = 46.5
pocket8.Length2 = 24.5
pocket8.Reversed = True

# Sketch on XZ plane
sketch15 = body.newObject("Sketcher::SketchObject", "Sketch014")
sketch15.AttachmentSupport = (doc.getObject("XZ_Plane"), [""])
sketch15.MapMode = "FlatFace"
sketch15.AttachmentOffset = App.Placement(App.Vector(0, 0, -2.5), App.Rotation())
sketch15.addGeometry(Part.Circle(App.Vector(0, 29.805394, 0), App.Vector(0, 0, 1), 4), False)
sketch15.addConstraint(Sketcher.Constraint("PointOnObject", 0, 3, -2))
sketch15.addConstraint(Sketcher.Constraint("Diameter", 0, Q("8 mm")))
sketch15.addConstraint(Sketcher.Constraint("DistanceY", -1, 1, 0, 3, Q("29.805394 mm")))
pocket9 = body.newObject("PartDesign::Pocket", "Pocket008")
pocket9.Profile = sketch15
pocket9.Length = 24.5
pocket9.Reversed = True

doc.recompute()
